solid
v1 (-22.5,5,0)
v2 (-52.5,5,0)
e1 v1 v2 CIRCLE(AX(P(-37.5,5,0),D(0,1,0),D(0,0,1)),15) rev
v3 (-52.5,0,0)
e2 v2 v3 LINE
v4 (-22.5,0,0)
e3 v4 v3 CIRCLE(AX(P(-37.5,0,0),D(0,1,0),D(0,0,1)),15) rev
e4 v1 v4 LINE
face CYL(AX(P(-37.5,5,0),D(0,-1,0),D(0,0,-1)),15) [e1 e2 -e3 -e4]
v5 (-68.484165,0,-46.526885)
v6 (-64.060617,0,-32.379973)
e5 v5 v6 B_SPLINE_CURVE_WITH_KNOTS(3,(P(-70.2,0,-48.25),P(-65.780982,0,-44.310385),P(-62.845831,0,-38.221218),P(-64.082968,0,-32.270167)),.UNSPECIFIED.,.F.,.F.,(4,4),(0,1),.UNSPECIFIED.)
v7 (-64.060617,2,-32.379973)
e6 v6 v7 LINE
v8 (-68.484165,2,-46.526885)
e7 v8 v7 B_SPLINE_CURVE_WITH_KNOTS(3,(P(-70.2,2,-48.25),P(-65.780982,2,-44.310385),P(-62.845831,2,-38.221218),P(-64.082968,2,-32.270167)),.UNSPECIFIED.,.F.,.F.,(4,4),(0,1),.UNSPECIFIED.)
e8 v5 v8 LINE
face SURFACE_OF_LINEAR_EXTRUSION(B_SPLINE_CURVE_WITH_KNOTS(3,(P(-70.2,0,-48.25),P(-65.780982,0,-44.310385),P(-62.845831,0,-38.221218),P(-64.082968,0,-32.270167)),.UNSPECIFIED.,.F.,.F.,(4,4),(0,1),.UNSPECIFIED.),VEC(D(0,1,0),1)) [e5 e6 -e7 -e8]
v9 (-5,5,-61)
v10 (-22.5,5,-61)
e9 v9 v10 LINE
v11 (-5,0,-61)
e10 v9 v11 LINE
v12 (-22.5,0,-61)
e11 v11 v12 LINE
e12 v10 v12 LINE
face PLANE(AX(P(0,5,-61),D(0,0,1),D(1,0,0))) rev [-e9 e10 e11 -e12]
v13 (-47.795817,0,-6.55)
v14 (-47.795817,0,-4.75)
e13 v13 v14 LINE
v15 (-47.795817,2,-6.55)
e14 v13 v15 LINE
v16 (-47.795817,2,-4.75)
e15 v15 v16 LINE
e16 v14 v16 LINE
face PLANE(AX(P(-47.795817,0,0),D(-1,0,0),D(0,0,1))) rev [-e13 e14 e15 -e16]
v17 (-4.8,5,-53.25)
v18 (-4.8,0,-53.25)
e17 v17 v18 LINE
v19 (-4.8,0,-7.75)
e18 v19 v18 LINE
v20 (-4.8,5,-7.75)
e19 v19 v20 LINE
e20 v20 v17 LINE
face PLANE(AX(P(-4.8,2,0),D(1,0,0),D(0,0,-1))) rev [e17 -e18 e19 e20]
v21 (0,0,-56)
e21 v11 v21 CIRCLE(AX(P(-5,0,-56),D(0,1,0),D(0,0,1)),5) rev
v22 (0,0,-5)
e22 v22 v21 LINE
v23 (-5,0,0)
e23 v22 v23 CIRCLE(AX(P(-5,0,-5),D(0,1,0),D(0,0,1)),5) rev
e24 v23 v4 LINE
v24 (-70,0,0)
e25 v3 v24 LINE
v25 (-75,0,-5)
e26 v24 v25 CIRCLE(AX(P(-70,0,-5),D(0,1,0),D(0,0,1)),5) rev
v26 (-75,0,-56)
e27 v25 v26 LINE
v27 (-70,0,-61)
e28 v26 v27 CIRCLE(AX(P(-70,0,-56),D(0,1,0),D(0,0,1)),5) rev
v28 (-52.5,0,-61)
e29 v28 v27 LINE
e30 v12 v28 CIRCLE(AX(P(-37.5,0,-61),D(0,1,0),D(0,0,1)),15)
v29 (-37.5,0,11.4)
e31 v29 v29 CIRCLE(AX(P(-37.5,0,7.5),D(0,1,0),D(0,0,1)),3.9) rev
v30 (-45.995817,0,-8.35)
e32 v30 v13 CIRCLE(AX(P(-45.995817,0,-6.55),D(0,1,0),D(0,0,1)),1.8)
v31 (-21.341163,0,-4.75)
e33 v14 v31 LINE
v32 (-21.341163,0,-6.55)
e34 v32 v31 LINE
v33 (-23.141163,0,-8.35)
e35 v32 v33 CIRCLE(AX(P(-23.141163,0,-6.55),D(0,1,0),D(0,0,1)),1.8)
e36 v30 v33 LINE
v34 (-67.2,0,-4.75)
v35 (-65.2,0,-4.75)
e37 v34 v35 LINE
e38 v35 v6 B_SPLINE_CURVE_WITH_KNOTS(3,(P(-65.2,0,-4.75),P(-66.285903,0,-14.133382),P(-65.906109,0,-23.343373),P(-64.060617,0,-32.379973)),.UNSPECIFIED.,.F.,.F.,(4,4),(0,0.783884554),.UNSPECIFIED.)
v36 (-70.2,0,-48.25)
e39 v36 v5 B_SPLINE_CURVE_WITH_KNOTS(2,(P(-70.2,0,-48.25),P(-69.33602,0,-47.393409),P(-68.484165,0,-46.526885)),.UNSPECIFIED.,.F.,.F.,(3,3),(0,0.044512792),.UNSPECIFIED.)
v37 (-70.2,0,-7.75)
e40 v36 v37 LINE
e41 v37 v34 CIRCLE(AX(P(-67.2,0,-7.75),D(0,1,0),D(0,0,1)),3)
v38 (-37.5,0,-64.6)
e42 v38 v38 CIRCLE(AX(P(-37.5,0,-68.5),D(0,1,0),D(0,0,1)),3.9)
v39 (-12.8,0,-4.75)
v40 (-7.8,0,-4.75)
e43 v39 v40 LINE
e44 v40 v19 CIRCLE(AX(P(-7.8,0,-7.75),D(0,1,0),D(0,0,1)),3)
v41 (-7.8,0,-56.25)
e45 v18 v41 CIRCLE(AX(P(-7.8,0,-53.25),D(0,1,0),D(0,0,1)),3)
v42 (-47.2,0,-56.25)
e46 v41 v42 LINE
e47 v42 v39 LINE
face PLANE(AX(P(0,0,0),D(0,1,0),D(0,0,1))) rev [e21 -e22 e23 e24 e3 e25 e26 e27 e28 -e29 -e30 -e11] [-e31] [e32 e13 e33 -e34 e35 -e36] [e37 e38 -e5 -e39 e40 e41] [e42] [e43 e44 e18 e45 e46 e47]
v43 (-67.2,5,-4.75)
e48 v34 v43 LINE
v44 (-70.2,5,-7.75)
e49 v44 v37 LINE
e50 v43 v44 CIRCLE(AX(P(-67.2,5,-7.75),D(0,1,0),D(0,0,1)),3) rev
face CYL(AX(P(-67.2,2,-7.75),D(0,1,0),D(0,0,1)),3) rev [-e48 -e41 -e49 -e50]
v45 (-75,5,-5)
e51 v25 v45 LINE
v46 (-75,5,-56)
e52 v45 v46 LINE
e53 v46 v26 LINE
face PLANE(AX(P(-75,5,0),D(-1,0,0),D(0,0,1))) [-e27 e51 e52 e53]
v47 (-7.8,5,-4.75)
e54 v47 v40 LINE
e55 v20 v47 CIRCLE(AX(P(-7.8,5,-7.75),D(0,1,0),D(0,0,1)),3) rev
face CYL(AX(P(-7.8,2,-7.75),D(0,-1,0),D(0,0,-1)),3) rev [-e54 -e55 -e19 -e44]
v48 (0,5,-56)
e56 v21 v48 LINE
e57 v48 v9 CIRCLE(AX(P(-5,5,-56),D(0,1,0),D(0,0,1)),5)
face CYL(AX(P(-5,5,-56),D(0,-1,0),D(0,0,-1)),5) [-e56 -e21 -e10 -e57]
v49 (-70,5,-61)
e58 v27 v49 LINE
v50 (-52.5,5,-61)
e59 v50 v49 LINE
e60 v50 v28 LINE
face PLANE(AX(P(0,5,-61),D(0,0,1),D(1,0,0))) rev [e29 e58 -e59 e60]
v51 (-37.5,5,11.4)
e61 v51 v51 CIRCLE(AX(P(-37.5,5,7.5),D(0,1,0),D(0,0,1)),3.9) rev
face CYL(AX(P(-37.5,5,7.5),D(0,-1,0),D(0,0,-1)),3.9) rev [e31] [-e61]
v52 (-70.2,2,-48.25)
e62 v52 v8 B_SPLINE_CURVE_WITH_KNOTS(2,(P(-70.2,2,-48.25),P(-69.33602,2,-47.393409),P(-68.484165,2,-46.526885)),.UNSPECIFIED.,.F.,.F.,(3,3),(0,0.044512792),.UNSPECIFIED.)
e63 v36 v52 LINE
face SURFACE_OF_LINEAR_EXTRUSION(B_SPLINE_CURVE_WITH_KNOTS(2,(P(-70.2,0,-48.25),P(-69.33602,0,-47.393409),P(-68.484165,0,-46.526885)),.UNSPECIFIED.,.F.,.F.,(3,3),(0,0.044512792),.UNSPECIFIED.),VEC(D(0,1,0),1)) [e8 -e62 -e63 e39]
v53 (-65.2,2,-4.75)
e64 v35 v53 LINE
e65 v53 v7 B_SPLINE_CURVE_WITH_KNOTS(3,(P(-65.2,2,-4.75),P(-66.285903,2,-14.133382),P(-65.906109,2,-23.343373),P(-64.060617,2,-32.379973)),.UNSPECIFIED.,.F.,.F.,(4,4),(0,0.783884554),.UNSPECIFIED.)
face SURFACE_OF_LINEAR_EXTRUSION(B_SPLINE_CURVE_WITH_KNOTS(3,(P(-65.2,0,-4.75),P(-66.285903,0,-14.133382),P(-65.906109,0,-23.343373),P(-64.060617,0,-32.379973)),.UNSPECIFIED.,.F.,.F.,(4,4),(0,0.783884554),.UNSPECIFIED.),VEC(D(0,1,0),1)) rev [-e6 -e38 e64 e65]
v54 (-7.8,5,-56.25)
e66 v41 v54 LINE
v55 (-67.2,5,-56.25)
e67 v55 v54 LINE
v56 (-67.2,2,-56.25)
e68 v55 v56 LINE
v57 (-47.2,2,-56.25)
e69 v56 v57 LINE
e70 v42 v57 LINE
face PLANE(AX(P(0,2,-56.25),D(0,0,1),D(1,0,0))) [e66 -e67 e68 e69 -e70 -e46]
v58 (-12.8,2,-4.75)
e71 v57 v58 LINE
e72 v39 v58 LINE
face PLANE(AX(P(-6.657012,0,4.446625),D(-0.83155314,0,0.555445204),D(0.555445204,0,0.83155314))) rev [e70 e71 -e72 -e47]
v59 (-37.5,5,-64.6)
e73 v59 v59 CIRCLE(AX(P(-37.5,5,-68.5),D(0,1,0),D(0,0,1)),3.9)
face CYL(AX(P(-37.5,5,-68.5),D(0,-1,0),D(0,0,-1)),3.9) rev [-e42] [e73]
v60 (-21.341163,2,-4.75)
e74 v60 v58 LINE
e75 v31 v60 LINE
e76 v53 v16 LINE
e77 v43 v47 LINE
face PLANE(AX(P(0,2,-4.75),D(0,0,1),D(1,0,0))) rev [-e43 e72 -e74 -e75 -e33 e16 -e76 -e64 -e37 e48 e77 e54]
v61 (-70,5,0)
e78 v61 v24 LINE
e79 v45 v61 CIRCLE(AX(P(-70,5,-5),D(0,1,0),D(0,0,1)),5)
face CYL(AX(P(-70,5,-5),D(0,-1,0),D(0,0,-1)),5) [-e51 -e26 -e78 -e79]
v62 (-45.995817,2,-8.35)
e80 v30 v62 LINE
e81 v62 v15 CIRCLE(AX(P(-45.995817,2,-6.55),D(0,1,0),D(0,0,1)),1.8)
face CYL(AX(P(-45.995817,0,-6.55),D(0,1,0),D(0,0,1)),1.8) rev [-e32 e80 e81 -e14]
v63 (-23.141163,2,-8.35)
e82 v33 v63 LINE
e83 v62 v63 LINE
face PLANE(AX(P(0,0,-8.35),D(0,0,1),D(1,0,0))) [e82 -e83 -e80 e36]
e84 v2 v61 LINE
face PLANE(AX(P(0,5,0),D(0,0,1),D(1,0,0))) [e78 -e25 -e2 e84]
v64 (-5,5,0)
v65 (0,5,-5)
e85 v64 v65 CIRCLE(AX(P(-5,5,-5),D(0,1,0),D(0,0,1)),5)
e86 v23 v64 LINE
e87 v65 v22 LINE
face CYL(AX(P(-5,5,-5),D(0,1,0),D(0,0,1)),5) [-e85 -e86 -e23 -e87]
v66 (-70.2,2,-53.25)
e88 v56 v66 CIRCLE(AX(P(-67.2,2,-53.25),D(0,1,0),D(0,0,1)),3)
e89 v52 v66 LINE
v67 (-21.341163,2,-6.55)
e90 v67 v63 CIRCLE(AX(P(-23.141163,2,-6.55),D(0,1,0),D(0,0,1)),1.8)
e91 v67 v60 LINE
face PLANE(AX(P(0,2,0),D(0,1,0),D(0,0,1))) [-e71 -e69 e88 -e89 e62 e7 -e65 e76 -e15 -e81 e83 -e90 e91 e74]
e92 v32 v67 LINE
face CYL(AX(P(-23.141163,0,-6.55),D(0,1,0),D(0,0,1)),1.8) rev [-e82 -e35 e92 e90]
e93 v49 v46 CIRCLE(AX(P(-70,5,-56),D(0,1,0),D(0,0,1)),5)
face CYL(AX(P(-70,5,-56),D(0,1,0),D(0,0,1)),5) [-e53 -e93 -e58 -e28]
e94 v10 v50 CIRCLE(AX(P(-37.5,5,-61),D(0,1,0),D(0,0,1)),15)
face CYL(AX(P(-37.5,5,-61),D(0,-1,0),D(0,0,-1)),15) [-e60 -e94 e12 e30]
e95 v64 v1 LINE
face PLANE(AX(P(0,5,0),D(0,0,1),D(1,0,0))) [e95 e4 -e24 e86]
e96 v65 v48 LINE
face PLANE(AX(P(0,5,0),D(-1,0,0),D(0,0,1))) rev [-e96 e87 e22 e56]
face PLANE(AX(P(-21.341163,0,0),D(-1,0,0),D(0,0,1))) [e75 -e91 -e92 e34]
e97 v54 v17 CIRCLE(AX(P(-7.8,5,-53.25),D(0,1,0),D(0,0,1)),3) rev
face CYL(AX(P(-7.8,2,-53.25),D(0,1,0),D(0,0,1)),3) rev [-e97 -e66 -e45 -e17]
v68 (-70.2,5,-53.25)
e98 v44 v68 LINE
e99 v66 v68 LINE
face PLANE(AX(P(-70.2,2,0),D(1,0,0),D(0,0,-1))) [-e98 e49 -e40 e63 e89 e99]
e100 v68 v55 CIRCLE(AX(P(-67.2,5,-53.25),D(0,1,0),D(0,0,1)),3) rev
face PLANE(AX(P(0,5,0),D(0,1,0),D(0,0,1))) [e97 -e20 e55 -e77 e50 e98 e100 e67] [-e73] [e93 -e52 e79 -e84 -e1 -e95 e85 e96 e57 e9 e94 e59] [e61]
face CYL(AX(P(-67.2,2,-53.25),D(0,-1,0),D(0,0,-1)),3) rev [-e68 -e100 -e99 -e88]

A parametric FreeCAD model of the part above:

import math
import FreeCAD as App
import Part
import Sketcher

V = App.Vector


def edges_at(feature, points):
    """Names of the edges that pass closest to the given points."""
    edges = feature.Shape.Edges
    near = lambda p: min(range(len(edges)), key=lambda i: edges[i].distToShape(Part.Vertex(*p))[0])
    return sorted({f"Edge{near(p) + 1}" for p in points})

doc = App.newDocument("Part")
body = doc.addObject("PartDesign::Body", "Body")

sketch1 = doc.addObject("Sketcher::SketchObject", "Sketch")
body.addObject(sketch1)
sketch1.AttachmentSupport = (doc.XZ_Plane, [""])
sketch1.MapMode = "FlatFace"
sketch1.addGeometry(Part.ArcOfCircle(Part.Circle(V(-37.5, -61, 0), V(0, 0, 1), 15), math.radians(180), math.radians(360)), False)
sketch1.addGeometry(Part.LineSegment(V(-52.5, -61, 0), V(-75, -61, 0)), False)
sketch1.addGeometry(Part.LineSegment(V(-75, -61, 0), V(-75, 0, 0)), False)
sketch1.addGeometry(Part.LineSegment(V(-75, 0, 0), V(-52.5, 0, 0)), False)
sketch1.addGeometry(Part.ArcOfCircle(Part.Circle(V(-37.5, 0, 0), V(0, 0, 1), 15), math.radians(0), math.radians(180)), False)
sketch1.addGeometry(Part.LineSegment(V(-22.5, 0, 0), V(0, 0, 0)), False)
sketch1.addGeometry(Part.LineSegment(V(0, 0, 0), V(0, -61, 0)), False)
sketch1.addGeometry(Part.LineSegment(V(0, -61, 0), V(-22.5, -61, 0)), False)
sketch1.addGeometry(Part.Circle(V(-37.5, 7.5, 0), V(0, 0, 1), 3.9), False)
sketch1.addGeometry(Part.Circle(V(-37.5, -68.5, 0), V(0, 0, 1), 3.9), False)
sketch1.addConstraint(Sketcher.Constraint("Coincident", 0, 1, 1, 1))
sketch1.addConstraint(Sketcher.Constraint("Coincident", 1, 2, 2, 1))
sketch1.addConstraint(Sketcher.Constraint("Coincident", 2, 2, 3, 1))
sketch1.addConstraint(Sketcher.Constraint("Coincident", 3, 2, 4, 2))
sketch1.addConstraint(Sketcher.Constraint("Coincident", 4, 1, 5, 1))
sketch1.addConstraint(Sketcher.Constraint("Coincident", 5, 2, 6, 1))
sketch1.addConstraint(Sketcher.Constraint("Coincident", 6, 2, 7, 1))
sketch1.addConstraint(Sketcher.Constraint("Coincident", 7, 2, 0, 2))
sketch1.addConstraint(Sketcher.Constraint("Horizontal", 1))
sketch1.addConstraint(Sketcher.Constraint("Vertical", 2))
sketch1.addConstraint(Sketcher.Constraint("Horizontal", 3))
sketch1.addConstraint(Sketcher.Constraint("Horizontal", 5))
sketch1.addConstraint(Sketcher.Constraint("Vertical", 6))
sketch1.addConstraint(Sketcher.Constraint("Horizontal", 7))
sketch1.addConstraint(Sketcher.Constraint("Coincident", 5, 2, -1, 1))
sketch1.addConstraint(Sketcher.Constraint("Equal", 0, 4))
sketch1.addConstraint(Sketcher.Constraint("Equal", 8, 9))
sketch1.addConstraint(Sketcher.Constraint("PointOnObject", 4, 3, -1))
sketch1.addConstraint(Sketcher.Constraint("PointOnObject", 2, 2, -1))
sketch1.addConstraint(Sketcher.Constraint("Horizontal", 1, 2, 6, 2))
sketch1.addConstraint(Sketcher.Constraint("Vertical", 0, 3, 4, 3))
sketch1.addConstraint(Sketcher.Constraint("Vertical", 4, 3, 8, 3))
sketch1.addConstraint(Sketcher.Constraint("Vertical", 8, 3, 9, 3))
sketch1.addConstraint(Sketcher.Constraint("Equal", 3, 5))
sketch1.addConstraint(Sketcher.Constraint("Radius", 0, 15.0))
sketch1.addConstraint(Sketcher.Constraint("Diameter", 8, 7.8))
sketch1.addConstraint(Sketcher.Constraint("DistanceY", 2, 1, 2, 2, 61.0))
sketch1.addConstraint(Sketcher.Constraint("DistanceX", 1, 2, 1, 1, 22.5))
sketch1.addConstraint(Sketcher.Constraint("DistanceY", 0, 3, -1, 1, 61.0))
sketch1.addConstraint(Sketcher.Constraint("DistanceY", 9, 3, 8, 3, 76.0))
sketch1.addConstraint(Sketcher.Constraint("DistanceY", -1, 1, 8, 3, 7.5))
pad1 = doc.addObject("PartDesign::Pad", "Pad")
body.addObject(pad1)
pad1.Profile = sketch1
pad1.Length = 5
pad1.Reversed = True

sketch2 = doc.addObject("Sketcher::SketchObject", "Sketch001")
body.addObject(sketch2)
sketch2.AttachmentSupport = (doc.XZ_Plane, [""])
sketch2.MapMode = "FlatFace"
sketch2.AttachmentOffset = App.Placement(V(0, 0, -5), App.Rotation())
sketch2.addGeometry(Part.LineSegment(V(-70.2, -56.25, 0), V(-70.2, -4.75, 0)), False)
sketch2.addGeometry(Part.LineSegment(V(-70.2, -4.75, 0), V(-4.8, -4.75, 0)), False)
sketch2.addGeometry(Part.LineSegment(V(-4.8, -4.75, 0), V(-4.8, -56.25, 0)), False)
sketch2.addGeometry(Part.LineSegment(V(-4.8, -56.25, 0), V(-70.2, -56.25, 0)), False)
sketch2.addConstraint(Sketcher.Constraint("Coincident", 0, 2, 1, 1))
sketch2.addConstraint(Sketcher.Constraint("Coincident", 1, 2, 2, 1))
sketch2.addConstraint(Sketcher.Constraint("Coincident", 2, 2, 3, 1))
sketch2.addConstraint(Sketcher.Constraint("Coincident", 3, 2, 0, 1))
sketch2.addConstraint(Sketcher.Constraint("Vertical", 0))
sketch2.addConstraint(Sketcher.Constraint("Horizontal", 1))
sketch2.addConstraint(Sketcher.Constraint("Vertical", 2))
sketch2.addConstraint(Sketcher.Constraint("Horizontal", 3))
sketch2.addConstraint(Sketcher.Constraint("DistanceX", 1, 1, 1, 2, 65.4))
sketch2.addConstraint(Sketcher.Constraint("DistanceY", 0, 1, 0, 2, 51.5))
sketch2.addConstraint(Sketcher.Constraint("DistanceX", 0, 2, -1, 1, 70.2))
sketch2.addConstraint(Sketcher.Constraint("DistanceY", 0, 2, -1, 1, 4.75))
pocket1 = doc.addObject("PartDesign::Pocket", "Pocket")
body.addObject(pocket1)
pocket1.Profile = sketch2
pocket1.Length = 3
pocket1.Reversed = True

sketch3 = doc.addObject("Sketcher::SketchObject", "Sketch002")
body.addObject(sketch3)
sketch3.AttachmentSupport = (doc.XZ_Plane, [""])
sketch3.MapMode = "FlatFace"
sketch3.AttachmentOffset = App.Placement(V(0, 0, -2), App.Rotation())
sketch3.addGeometry(Part.BSplineCurve([V(-70.2, -48.25, 0), V(-69.33602, -47.393409, 0), V(-68.484165, -46.526885, 0)], [3, 3], [0, 0.044512792], False, 2, [1, 1, 1], False), False)
sketch3.addGeometry(Part.LineSegment(V(-70.2, -48.25, 0), V(-70.2, -4.75, 0)), False)
sketch3.addGeometry(Part.LineSegment(V(-70.2, -4.75, 0), V(-65.2, -4.75, 0)), False)
sketch3.addGeometry(Part.BSplineCurve([V(-65.2, -4.75, 0), V(-66.281505, -14.095378, 0), V(-65.909161, -23.268768, 0), V(-64.082968, -32.270167, 0)], [4, 4], [0, 0.780709758], False, 3, [1, 1, 1, 1], False), False)
sketch3.addGeometry(Part.BSplineCurve([V(-64.082968, -32.270167, 0), V(-64.075541, -32.306772, 0), V(-64.068091, -32.343374, 0), V(-64.060617, -32.379973, 0)], [4, 4], [0.780709758, 0.783884554], False, 3, [1, 1, 1, 1], False), False)
sketch3.addGeometry(Part.BSplineCurve([V(-68.484165, -46.526885, 0), V(-65.083389, -42.682237, 0), V(-63.04347, -37.485478, 0), V(-64.060617, -32.379973, 0)], [4, 4], [0.136165996, 0.993850371], False, 3, [1, 1, 1, 1], False), False)
sketch3.addGeometry(Part.LineSegment(V(-47.2, -56.25, 0), V(-12.8, -4.75, 0)), False)
sketch3.addGeometry(Part.LineSegment(V(-12.8, -4.75, 0), V(-4.8, -4.75, 0)), False)
sketch3.addGeometry(Part.LineSegment(V(-4.8, -4.75, 0), V(-4.8, -56.25, 0)), False)
sketch3.addGeometry(Part.LineSegment(V(-4.8, -56.25, 0), V(-47.2, -56.25, 0)), False)
sketch3.addGeometry(Part.LineSegment(V(-21.341163, -4.75, 0), V(-21.341163, -6.55, 0)), False)
sketch3.addGeometry(Part.ArcOfCircle(Part.Circle(V(-23.141163, -6.55, 0), V(0, 0, 1), 1.8), math.radians(-90), math.radians(0)), False)
sketch3.addGeometry(Part.LineSegment(V(-23.141163, -8.35, 0), V(-45.995817, -8.35, 0)), False)
sketch3.addGeometry(Part.ArcOfCircle(Part.Circle(V(-45.995817, -6.55, 0), V(0, 0, 1), 1.8), math.radians(180), math.radians(270)), False)
sketch3.addGeometry(Part.LineSegment(V(-47.795817, -6.55, 0), V(-47.795817, -4.75, 0)), False)
sketch3.addGeometry(Part.LineSegment(V(-47.795817, -4.75, 0), V(-21.341163, -4.75, 0)), False)
sketch3.addConstraint(Sketcher.Constraint("Block", 0))
sketch3.addConstraint(Sketcher.Constraint("Block", 3))
sketch3.addConstraint(Sketcher.Constraint("Block", 4))
sketch3.addConstraint(Sketcher.Constraint("Block", 5))
sketch3.addConstraint(Sketcher.Constraint("Coincident", 0, 1, 1, 1))
sketch3.addConstraint(Sketcher.Constraint("Coincident", 1, 2, 2, 1))
sketch3.addConstraint(Sketcher.Constraint("Coincident", 2, 2, 3, 1))
sketch3.addConstraint(Sketcher.Constraint("Coincident", 6, 2, 7, 1))
sketch3.addConstraint(Sketcher.Constraint("Coincident", 7, 2, 8, 1))
sketch3.addConstraint(Sketcher.Constraint("Coincident", 8, 2, 9, 1))
sketch3.addConstraint(Sketcher.Constraint("Coincident", 9, 2, 6, 1))
sketch3.addConstraint(Sketcher.Constraint("Tangent", 10, 2, 11, 2))
sketch3.addConstraint(Sketcher.Constraint("Tangent", 11, 1, 12, 1))
sketch3.addConstraint(Sketcher.Constraint("Tangent", 12, 2, 13, 2))
sketch3.addConstraint(Sketcher.Constraint("Tangent", 13, 1, 14, 1))
sketch3.addConstraint(Sketcher.Constraint("Coincident", 14, 2, 15, 1))
sketch3.addConstraint(Sketcher.Constraint("Coincident", 15, 2, 10, 1))
sketch3.addConstraint(Sketcher.Constraint("Vertical", 1))
sketch3.addConstraint(Sketcher.Constraint("Horizontal", 2))
sketch3.addConstraint(Sketcher.Constraint("Horizontal", 7))
sketch3.addConstraint(Sketcher.Constraint("Vertical", 8))
sketch3.addConstraint(Sketcher.Constraint("Horizontal", 9))
sketch3.addConstraint(Sketcher.Constraint("Vertical", 10))
sketch3.addConstraint(Sketcher.Constraint("Horizontal", 12))
sketch3.addConstraint(Sketcher.Constraint("Vertical", 14))
sketch3.addConstraint(Sketcher.Constraint("Horizontal", 15))
sketch3.addConstraint(Sketcher.Constraint("Equal", 11, 13))
sketch3.addConstraint(Sketcher.Constraint("Horizontal", 2, 2, 6, 2))
sketch3.addConstraint(Sketcher.Constraint("Horizontal", 7, 2, 14, 2))
sketch3.addConstraint(Sketcher.Constraint("Radius", 11, 1.8))
sketch3.addConstraint(Sketcher.Constraint("DistanceX", 7, 1, 7, 2, 8.0))
sketch3.addConstraint(Sketcher.Constraint("DistanceX", 9, 2, 9, 1, 42.4))
sketch3.addConstraint(Sketcher.Constraint("DistanceY", 8, 2, 8, 1, 51.5))
sketch3.addConstraint(Sketcher.Constraint("DistanceY", 10, 2, 10, 1, 1.8))
sketch3.addConstraint(Sketcher.Constraint("DistanceX", 2, 2, 9, 2, 18.0))
sketch3.addConstraint(Sketcher.Constraint("DistanceX", 12, 2, 12, 1, 22.854654))
sketch3.addConstraint(Sketcher.Constraint("DistanceX", 11, 3, -1, 1, 23.141163))
pocket2 = doc.addObject("PartDesign::Pocket", "Pocket001")
body.addObject(pocket2)
pocket2.Profile = sketch3
pocket2.Type = "ThroughAll"
pocket2.Reversed = True
doc.recompute()

fillet = doc.addObject("PartDesign::Fillet", "Fillet")
body.addObject(fillet)
fillet.Base = (pocket2, edges_at(pocket2, [
    (-75, 2.5, -61),
    (0, 2.5, -61),
    (0, 2.5, 0),
    (-75, 2.5, 0),
]))
fillet.Radius = 5
doc.recompute()

fillet2 = doc.addObject("PartDesign::Fillet", "Fillet001")
body.addObject(fillet2)
fillet2.Base = (fillet, edges_at(fillet, [
    (-70.2, 3.5, -56.25),
    (-4.8, 2.5, -56.25),
    (-4.8, 2.5, -4.75),
    (-70.2, 2.5, -4.75),
]))
fillet2.Radius = 3

doc.recompute()
